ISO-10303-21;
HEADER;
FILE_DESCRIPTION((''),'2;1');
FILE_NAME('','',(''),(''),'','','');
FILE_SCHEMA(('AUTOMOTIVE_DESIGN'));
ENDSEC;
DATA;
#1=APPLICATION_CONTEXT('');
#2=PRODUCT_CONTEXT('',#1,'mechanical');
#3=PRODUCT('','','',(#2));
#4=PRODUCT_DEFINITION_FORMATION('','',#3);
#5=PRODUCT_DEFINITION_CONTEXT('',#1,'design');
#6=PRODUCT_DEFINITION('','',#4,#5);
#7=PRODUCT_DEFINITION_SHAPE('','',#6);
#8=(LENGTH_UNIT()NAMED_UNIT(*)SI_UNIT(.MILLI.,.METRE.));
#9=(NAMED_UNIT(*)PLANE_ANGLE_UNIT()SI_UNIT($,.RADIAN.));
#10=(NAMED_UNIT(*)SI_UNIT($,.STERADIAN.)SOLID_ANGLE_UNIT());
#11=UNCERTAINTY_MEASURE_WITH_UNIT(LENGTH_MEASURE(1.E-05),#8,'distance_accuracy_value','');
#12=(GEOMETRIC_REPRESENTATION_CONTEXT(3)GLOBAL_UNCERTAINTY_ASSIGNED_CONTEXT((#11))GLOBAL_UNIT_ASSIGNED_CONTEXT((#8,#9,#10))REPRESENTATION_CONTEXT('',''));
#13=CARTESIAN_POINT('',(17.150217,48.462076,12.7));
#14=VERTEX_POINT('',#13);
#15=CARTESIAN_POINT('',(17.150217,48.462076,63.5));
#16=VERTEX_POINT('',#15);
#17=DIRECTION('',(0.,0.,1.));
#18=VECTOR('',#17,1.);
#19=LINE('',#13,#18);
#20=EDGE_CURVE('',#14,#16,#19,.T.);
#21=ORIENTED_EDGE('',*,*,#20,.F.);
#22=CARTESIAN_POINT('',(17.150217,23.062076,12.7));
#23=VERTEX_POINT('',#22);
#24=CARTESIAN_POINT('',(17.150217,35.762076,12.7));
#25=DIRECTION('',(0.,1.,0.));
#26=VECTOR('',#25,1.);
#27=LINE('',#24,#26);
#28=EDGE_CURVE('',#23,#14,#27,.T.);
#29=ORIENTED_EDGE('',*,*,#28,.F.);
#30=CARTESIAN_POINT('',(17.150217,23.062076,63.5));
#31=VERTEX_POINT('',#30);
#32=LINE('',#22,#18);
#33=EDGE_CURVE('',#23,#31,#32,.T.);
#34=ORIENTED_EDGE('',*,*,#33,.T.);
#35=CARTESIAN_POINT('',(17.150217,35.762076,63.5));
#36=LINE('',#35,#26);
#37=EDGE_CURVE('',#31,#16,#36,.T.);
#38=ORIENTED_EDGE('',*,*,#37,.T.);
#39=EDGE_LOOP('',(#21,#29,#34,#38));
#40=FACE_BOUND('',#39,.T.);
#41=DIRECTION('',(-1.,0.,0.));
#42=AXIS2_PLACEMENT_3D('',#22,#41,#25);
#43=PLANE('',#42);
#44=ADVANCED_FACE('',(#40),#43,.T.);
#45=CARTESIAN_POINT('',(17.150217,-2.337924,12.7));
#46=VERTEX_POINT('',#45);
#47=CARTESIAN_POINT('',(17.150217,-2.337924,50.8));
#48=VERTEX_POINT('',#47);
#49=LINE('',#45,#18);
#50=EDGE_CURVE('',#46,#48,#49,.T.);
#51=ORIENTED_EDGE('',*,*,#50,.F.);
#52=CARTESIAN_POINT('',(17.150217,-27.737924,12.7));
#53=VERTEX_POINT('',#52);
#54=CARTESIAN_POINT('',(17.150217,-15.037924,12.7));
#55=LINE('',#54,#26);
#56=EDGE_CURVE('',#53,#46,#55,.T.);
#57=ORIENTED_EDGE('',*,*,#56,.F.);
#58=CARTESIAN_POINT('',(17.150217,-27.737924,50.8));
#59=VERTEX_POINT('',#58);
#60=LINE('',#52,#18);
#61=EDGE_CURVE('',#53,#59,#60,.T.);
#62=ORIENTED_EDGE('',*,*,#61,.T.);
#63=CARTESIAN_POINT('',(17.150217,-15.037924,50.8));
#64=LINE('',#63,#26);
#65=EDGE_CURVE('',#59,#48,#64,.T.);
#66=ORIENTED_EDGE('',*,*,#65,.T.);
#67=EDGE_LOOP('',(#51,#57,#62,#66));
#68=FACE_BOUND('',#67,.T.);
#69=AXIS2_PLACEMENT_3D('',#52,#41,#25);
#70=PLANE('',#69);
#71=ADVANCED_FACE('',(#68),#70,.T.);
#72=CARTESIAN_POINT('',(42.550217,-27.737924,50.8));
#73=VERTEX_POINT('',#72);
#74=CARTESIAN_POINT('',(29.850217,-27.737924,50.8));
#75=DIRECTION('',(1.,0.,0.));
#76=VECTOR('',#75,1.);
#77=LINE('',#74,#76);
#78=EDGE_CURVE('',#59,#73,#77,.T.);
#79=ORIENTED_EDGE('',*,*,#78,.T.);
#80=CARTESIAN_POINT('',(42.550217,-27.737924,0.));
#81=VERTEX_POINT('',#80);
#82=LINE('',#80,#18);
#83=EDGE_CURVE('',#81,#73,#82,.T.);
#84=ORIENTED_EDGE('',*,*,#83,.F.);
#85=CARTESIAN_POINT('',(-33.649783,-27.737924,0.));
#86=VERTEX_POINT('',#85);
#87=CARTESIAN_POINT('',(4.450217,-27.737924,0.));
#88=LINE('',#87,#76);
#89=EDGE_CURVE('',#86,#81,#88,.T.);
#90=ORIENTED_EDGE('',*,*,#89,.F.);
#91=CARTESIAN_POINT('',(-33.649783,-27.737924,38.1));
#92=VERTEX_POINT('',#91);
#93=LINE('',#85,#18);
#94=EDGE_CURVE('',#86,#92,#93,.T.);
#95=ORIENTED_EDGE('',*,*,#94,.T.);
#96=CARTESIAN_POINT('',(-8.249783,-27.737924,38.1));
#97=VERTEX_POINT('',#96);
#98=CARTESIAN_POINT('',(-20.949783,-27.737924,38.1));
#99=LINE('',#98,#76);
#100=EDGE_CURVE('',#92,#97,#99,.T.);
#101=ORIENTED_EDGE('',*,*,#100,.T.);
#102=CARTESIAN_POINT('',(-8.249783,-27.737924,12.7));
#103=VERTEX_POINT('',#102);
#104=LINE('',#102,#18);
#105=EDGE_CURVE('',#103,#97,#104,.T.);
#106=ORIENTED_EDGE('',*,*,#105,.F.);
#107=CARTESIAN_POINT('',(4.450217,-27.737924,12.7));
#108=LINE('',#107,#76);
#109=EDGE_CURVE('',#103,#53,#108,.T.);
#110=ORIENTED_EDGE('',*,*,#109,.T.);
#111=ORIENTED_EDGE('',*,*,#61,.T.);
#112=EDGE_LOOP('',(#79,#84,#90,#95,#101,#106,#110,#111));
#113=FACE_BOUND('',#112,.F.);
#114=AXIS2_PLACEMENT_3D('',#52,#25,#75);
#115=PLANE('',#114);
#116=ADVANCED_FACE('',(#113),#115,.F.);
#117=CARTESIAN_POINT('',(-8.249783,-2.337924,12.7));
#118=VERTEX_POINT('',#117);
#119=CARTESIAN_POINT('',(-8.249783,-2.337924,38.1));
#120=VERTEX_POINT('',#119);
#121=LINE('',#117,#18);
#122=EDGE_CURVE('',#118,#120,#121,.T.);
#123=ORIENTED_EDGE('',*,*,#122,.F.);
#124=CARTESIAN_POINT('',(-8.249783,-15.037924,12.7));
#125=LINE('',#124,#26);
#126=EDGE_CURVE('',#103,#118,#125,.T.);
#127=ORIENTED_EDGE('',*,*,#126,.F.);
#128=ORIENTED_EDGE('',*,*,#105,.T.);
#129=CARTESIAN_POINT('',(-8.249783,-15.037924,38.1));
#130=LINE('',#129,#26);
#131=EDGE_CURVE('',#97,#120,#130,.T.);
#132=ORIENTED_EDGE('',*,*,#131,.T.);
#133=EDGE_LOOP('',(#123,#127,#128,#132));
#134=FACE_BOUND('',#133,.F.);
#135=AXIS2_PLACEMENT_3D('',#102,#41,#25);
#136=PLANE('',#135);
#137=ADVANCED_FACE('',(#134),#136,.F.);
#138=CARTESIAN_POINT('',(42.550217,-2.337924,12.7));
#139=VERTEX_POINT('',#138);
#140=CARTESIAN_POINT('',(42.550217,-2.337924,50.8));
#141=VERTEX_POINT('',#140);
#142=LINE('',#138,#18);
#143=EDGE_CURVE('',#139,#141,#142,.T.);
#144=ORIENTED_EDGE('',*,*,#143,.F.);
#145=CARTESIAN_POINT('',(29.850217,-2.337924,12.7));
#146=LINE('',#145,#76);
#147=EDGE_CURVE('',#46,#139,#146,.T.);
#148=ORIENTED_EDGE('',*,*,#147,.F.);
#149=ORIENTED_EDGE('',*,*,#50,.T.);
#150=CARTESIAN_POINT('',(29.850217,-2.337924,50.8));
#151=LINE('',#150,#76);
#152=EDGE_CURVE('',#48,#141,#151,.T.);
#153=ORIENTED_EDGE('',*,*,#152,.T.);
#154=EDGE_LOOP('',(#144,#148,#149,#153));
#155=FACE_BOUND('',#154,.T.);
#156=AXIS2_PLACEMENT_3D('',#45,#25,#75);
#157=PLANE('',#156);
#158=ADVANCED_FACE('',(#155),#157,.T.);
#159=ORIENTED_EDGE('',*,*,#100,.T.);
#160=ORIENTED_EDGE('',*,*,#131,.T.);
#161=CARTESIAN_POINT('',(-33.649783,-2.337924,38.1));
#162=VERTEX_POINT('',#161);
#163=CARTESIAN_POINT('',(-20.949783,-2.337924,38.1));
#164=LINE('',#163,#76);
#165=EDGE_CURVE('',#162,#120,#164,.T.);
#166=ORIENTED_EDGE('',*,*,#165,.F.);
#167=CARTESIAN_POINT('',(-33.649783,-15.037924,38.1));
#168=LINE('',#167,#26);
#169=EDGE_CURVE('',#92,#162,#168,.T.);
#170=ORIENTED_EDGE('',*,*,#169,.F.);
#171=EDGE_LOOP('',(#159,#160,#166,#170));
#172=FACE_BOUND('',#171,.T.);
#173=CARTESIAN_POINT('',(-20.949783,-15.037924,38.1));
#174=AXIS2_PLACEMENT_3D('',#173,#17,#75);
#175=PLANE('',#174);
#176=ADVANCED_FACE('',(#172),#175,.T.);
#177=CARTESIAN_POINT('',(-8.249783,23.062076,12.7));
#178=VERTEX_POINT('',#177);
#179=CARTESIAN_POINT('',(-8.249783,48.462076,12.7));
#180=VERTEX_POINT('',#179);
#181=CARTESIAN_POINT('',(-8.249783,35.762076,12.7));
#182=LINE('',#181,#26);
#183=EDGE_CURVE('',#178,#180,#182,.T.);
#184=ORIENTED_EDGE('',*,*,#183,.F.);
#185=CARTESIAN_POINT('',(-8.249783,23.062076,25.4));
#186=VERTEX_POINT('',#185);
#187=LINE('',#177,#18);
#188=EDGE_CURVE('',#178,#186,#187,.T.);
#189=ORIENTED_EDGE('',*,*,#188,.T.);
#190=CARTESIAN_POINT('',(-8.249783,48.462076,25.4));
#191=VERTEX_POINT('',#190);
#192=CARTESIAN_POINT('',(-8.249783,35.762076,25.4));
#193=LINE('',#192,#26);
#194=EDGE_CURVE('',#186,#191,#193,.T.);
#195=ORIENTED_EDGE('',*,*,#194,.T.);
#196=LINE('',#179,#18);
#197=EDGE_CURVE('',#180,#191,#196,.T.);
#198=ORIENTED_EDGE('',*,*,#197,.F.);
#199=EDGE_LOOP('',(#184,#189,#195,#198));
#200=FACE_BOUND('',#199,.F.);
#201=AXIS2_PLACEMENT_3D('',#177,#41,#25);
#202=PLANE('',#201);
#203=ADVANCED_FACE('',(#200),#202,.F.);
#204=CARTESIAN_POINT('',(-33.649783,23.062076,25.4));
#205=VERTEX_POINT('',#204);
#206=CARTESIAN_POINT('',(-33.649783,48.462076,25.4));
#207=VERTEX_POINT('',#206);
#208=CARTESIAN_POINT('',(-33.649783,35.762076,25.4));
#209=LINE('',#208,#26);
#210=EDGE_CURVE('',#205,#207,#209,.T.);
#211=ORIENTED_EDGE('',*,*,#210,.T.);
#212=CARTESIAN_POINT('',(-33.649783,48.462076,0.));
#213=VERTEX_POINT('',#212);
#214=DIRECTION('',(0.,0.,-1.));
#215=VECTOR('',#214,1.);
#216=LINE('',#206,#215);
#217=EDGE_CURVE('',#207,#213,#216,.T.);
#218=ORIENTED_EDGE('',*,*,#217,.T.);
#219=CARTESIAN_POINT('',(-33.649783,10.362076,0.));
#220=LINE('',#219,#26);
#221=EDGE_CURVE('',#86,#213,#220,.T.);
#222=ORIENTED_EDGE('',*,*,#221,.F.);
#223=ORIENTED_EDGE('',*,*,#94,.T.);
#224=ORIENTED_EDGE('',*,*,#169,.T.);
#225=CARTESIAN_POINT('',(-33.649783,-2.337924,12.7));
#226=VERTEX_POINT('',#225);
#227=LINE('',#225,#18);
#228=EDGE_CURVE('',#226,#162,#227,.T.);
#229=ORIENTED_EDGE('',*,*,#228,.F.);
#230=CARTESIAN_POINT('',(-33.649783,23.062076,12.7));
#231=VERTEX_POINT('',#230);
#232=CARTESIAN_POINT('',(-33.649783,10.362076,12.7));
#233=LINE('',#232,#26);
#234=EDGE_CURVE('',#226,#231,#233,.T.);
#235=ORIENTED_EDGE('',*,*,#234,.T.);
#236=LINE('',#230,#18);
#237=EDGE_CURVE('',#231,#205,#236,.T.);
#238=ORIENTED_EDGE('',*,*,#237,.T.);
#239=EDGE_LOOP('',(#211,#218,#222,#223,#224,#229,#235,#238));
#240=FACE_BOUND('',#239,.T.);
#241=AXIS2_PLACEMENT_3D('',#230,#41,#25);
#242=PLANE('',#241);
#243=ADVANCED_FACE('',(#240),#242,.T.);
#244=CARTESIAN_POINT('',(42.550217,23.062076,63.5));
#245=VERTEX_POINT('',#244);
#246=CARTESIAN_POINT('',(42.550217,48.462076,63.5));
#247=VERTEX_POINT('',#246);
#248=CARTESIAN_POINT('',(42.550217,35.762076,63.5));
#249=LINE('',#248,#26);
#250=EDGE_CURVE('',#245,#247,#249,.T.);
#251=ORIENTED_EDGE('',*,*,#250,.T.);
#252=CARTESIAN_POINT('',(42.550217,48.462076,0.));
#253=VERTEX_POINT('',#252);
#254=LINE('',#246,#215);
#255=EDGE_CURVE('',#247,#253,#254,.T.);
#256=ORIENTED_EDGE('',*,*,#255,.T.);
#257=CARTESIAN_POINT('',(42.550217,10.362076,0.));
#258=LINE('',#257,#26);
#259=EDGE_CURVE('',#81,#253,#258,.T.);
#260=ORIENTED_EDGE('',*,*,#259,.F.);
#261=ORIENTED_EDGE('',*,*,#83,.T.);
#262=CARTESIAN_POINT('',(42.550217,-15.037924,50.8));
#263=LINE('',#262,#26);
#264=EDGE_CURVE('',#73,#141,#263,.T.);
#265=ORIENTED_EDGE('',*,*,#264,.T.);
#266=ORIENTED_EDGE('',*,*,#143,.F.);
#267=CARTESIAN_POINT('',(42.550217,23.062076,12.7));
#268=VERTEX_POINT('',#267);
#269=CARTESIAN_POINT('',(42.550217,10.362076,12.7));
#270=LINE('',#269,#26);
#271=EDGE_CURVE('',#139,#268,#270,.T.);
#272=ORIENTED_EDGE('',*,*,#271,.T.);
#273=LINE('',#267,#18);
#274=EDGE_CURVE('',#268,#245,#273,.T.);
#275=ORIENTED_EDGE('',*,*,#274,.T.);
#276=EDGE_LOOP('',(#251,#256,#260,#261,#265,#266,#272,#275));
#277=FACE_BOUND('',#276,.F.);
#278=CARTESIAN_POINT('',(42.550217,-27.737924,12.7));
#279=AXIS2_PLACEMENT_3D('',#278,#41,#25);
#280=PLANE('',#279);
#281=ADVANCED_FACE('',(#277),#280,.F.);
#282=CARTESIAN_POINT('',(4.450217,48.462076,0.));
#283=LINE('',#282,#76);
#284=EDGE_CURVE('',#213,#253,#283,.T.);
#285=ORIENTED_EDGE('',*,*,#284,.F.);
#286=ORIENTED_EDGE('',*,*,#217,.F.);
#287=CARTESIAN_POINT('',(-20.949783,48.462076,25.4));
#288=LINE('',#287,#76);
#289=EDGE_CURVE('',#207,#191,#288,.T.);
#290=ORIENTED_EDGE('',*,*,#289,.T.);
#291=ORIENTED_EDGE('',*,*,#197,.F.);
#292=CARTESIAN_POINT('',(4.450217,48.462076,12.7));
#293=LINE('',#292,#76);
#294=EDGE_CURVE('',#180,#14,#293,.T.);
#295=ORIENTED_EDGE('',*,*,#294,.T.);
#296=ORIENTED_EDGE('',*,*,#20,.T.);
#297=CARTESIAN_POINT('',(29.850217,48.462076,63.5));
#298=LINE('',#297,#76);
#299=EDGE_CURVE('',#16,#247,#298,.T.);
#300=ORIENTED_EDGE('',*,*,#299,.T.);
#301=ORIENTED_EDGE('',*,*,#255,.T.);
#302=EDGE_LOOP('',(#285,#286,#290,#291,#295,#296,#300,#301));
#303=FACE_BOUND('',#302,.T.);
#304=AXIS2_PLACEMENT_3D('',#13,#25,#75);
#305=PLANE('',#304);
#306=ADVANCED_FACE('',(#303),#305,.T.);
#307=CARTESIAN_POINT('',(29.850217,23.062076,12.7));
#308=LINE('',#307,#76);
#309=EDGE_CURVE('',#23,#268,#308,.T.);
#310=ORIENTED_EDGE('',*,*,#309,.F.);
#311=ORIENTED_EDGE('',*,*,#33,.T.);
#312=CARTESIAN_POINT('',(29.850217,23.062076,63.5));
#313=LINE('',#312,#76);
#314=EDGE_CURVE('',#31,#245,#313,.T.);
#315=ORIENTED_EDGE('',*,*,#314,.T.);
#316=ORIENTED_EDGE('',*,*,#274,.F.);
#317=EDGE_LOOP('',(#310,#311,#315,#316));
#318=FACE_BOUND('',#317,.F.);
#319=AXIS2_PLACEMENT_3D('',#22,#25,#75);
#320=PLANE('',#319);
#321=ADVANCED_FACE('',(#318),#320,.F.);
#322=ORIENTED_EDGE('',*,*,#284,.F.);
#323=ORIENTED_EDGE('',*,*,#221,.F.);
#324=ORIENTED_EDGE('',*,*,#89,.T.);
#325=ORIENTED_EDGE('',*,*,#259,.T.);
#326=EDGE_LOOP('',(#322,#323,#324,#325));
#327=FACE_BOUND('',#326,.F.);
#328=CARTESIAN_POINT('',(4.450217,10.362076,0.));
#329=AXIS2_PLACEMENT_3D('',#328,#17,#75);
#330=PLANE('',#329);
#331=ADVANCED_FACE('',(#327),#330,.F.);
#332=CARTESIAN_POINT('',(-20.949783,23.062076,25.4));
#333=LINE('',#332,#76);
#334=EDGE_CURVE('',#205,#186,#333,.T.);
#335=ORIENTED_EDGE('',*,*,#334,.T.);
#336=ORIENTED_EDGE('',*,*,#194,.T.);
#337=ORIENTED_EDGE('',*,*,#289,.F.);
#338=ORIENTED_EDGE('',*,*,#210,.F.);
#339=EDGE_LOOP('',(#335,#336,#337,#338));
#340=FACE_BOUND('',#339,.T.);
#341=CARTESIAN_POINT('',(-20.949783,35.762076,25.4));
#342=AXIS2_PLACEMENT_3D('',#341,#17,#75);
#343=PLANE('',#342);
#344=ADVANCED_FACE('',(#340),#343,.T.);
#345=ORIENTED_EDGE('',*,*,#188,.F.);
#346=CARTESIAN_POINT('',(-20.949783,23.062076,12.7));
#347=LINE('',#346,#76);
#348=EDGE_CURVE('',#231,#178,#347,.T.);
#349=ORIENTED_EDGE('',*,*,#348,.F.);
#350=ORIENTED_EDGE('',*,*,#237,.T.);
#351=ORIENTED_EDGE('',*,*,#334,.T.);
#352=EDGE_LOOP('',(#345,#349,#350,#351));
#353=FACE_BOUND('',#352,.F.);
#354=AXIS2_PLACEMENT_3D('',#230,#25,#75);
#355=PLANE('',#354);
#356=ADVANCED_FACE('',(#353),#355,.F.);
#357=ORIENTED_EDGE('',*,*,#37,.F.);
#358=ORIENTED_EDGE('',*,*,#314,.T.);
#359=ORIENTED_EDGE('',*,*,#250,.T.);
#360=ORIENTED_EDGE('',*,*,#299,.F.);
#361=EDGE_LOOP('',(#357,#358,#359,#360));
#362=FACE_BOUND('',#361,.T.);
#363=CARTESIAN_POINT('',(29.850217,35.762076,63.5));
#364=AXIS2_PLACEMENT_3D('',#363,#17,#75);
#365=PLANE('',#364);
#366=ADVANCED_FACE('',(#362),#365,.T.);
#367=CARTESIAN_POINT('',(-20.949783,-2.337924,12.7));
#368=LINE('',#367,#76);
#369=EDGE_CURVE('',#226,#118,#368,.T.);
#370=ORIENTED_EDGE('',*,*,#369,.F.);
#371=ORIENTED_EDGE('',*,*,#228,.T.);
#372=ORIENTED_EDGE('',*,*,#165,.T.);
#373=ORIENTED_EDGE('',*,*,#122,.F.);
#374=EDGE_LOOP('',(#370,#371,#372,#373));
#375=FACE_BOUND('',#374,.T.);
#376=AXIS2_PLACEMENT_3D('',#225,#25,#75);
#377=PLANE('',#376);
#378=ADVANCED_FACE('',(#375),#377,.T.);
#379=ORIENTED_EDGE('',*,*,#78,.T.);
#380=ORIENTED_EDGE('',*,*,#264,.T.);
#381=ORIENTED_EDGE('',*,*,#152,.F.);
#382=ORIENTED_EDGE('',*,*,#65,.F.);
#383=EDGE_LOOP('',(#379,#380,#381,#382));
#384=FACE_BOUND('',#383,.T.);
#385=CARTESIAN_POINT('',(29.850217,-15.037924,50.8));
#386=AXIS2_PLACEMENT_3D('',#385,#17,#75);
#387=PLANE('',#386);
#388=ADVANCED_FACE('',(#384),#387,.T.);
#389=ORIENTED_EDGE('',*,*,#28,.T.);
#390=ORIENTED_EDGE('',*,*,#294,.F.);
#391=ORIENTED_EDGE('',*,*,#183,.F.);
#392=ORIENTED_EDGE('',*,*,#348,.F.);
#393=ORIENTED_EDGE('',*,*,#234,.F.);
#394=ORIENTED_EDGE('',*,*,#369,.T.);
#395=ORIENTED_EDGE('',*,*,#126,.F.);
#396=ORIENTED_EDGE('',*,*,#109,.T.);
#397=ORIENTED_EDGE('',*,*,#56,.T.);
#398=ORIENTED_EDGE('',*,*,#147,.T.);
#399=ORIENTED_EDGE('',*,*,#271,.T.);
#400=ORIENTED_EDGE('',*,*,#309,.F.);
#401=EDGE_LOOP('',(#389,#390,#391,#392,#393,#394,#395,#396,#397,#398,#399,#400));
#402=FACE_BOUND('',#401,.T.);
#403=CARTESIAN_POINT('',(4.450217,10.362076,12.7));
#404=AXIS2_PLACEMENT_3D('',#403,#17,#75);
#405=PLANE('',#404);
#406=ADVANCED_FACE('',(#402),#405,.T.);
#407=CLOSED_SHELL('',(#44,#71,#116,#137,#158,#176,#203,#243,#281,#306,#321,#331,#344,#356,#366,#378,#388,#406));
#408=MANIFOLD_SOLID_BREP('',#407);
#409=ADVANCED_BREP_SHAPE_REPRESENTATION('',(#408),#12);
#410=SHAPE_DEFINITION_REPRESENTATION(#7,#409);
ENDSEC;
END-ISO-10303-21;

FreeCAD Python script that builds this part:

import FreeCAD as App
import Part
import Sketcher
from FreeCAD import Vector
Q = App.Units.Quantity

doc = App.newDocument("Part")
body = doc.addObject("PartDesign::Body", "Body")

sketch1 = body.newObject("Sketcher::SketchObject", "Sketch")
sketch1.AttachmentSupport = (doc.getObject("XY_Plane"), [""])
sketch1.MapMode = "FlatFace"
sketch1.addGeometry([
    Part.LineSegment(Vector(-34, 48, 0), Vector(-34, -28, 0)),
    Part.LineSegment(Vector(-34, -28, 0), Vector(43, -28, 0)),
    Part.LineSegment(Vector(43, -28, 0), Vector(43, 48, 0)),
    Part.LineSegment(Vector(43, 48, 0), Vector(-34, 48, 0)),
], False)
sketch1.addConstraint([
    Sketcher.Constraint("Coincident", 0, 2, 1, 1),
    Sketcher.Constraint("Coincident", 1, 2, 2, 1),
    Sketcher.Constraint("Coincident", 2, 2, 3, 1),
    Sketcher.Constraint("Coincident", 3, 2, 0, 1),
    Sketcher.Constraint("Vertical", 0),
    Sketcher.Constraint("Horizontal", 1),
    Sketcher.Constraint("Vertical", 2),
    Sketcher.Constraint("Horizontal", 3),
    Sketcher.Constraint("Equal", 3, 0),
    Sketcher.Constraint("DistanceX", 1, 1, 1, 2, Q("3 in")),
    Sketcher.Constraint("DistanceX", 0, 2, -1, 1, 33.649783),
    Sketcher.Constraint("DistanceY", 0, 2, -1, 1, 27.737924),
])
pad1 = body.newObject("PartDesign::Pad", "Pad")
pad1.Profile = sketch1
pad1.Length = Q("0.5 in")

sketch2 = body.newObject("Sketcher::SketchObject", "Sketch001")
sketch2.AttachmentSupport = (doc.getObject("XY_Plane"), [""])
sketch2.MapMode = "FlatFace"
sketch2.AttachmentOffset = App.Placement(Vector(0, 0, 0.5 * 25.4), App.Rotation())
sketch2.addGeometry([
    Part.LineSegment(Vector(-34, -2, 0), Vector(-34, -28, 0)),
    Part.LineSegment(Vector(-34, -28, 0), Vector(-8, -28, 0)),
    Part.LineSegment(Vector(-8, -28, 0), Vector(-8, -2, 0)),
    Part.LineSegment(Vector(-8, -2, 0), Vector(-34, -2, 0)),
], False)
sketch2.addConstraint([
    Sketcher.Constraint("Coincident", 0, 2, 1, 1),
    Sketcher.Constraint("Coincident", 1, 2, 2, 1),
    Sketcher.Constraint("Coincident", 2, 2, 3, 1),
    Sketcher.Constraint("Coincident", 3, 2, 0, 1),
    Sketcher.Constraint("Vertical", 0),
    Sketcher.Constraint("Horizontal", 1),
    Sketcher.Constraint("Vertical", 2),
    Sketcher.Constraint("Horizontal", 3),
    Sketcher.Constraint("Equal", 3, 0),
    Sketcher.Constraint("DistanceX", 1, 1, 1, 2, Q("1 in")),
    Sketcher.Constraint("DistanceX", 0, 2, -1, 1, 33.649783),
    Sketcher.Constraint("DistanceY", 0, 2, -1, 1, 27.737924),
])
pad2 = body.newObject("PartDesign::Pad", "Pad001")
pad2.Profile = sketch2
pad2.Length = Q("1 in")

sketch3 = body.newObject("Sketcher::SketchObject", "Sketch002")
sketch3.AttachmentSupport = (doc.getObject("XY_Plane"), [""])
sketch3.MapMode = "FlatFace"
sketch3.AttachmentOffset = App.Placement(Vector(0, 0, 0.5 * 25.4), App.Rotation())
sketch3.addGeometry([
    Part.LineSegment(Vector(-34, 48, 0), Vector(-34, 23, 0)),
    Part.LineSegment(Vector(-34, 23, 0), Vector(-8, 23, 0)),
    Part.LineSegment(Vector(-8, 23, 0), Vector(-8, 48, 0)),
    Part.LineSegment(Vector(-8, 48, 0), Vector(-34, 48, 0)),
], False)
sketch3.addConstraint([
    Sketcher.Constraint("Coincident", 0, 2, 1, 1),
    Sketcher.Constraint("Coincident", 1, 2, 2, 1),
    Sketcher.Constraint("Coincident", 2, 2, 3, 1),
    Sketcher.Constraint("Coincident", 3, 2, 0, 1),
    Sketcher.Constraint("Vertical", 0),
    Sketcher.Constraint("Horizontal", 1),
    Sketcher.Constraint("Vertical", 2),
    Sketcher.Constraint("Horizontal", 3),
    Sketcher.Constraint("Equal", 3, 0),
    Sketcher.Constraint("DistanceX", 1, 1, 1, 2, Q("1 in")),
    Sketcher.Constraint("DistanceX", 0, 2, -1, 1, 33.649783),
    Sketcher.Constraint("DistanceY", -1, 1, 0, 2, 23.062076),
])
pad3 = body.newObject("PartDesign::Pad", "Pad002")
pad3.Profile = sketch3
pad3.Length = Q("0.5 in")

sketch4 = body.newObject("Sketcher::SketchObject", "Sketch003")
sketch4.AttachmentSupport = (doc.getObject("XY_Plane"), [""])
sketch4.MapMode = "FlatFace"
sketch4.AttachmentOffset = App.Placement(Vector(0, 0, 0.5 * 25.4), App.Rotation())
sketch4.addGeometry([
    Part.LineSegment(Vector(17, 48, 0), Vector(17, 23, 0)),
    Part.LineSegment(Vector(17, 23, 0), Vector(43, 23, 0)),
    Part.LineSegment(Vector(43, 23, 0), Vector(43, 48, 0)),
    Part.LineSegment(Vector(43, 48, 0), Vector(17, 48, 0)),
], False)
sketch4.addConstraint([
    Sketcher.Constraint("Coincident", 0, 2, 1, 1),
    Sketcher.Constraint("Coincident", 1, 2, 2, 1),
    Sketcher.Constraint("Coincident", 2, 2, 3, 1),
    Sketcher.Constraint("Coincident", 3, 2, 0, 1),
    Sketcher.Constraint("Vertical", 0),
    Sketcher.Constraint("Horizontal", 1),
    Sketcher.Constraint("Vertical", 2),
    Sketcher.Constraint("Horizontal", 3),
    Sketcher.Constraint("Equal", 3, 0),
    Sketcher.Constraint("DistanceX", 1, 1, 1, 2, Q("1 in")),
    Sketcher.Constraint("DistanceX", -1, 1, 0, 2, 17.150217),
    Sketcher.Constraint("DistanceY", -1, 1, 0, 2, 23.062076),
])
pad4 = body.newObject("PartDesign::Pad", "Pad003")
pad4.Profile = sketch4
pad4.Length = Q("2 in")

sketch5 = body.newObject("Sketcher::SketchObject", "Sketch004")
sketch5.AttachmentSupport = (doc.getObject("XY_Plane"), [""])
sketch5.MapMode = "FlatFace"
sketch5.AttachmentOffset = App.Placement(Vector(0, 0, 0.5 * 25.4), App.Rotation())
sketch5.addGeometry([
    Part.LineSegment(Vector(17, -2, 0), Vector(17, -28, 0)),
    Part.LineSegment(Vector(17, -28, 0), Vector(43, -28, 0)),
    Part.LineSegment(Vector(43, -28, 0), Vector(43, -2, 0)),
    Part.LineSegment(Vector(43, -2, 0), Vector(17, -2, 0)),
], False)
sketch5.addConstraint([
    Sketcher.Constraint("Coincident", 0, 2, 1, 1),
    Sketcher.Constraint("Coincident", 1, 2, 2, 1),
    Sketcher.Constraint("Coincident", 2, 2, 3, 1),
    Sketcher.Constraint("Coincident", 3, 2, 0, 1),
    Sketcher.Constraint("Vertical", 0),
    Sketcher.Constraint("Horizontal", 1),
    Sketcher.Constraint("Vertical", 2),
    Sketcher.Constraint("Horizontal", 3),
    Sketcher.Constraint("Equal", 3, 0),
    Sketcher.Constraint("DistanceX", 1, 1, 1, 2, Q("1 in")),
    Sketcher.Constraint("DistanceX", -1, 1, 0, 2, 17.150217),
    Sketcher.Constraint("DistanceY", 0, 2, -1, 1, 27.737924),
])
pad5 = body.newObject("PartDesign::Pad", "Pad004")
pad5.Profile = sketch5
pad5.Length = Q("1.5 in")

doc.recompute()
